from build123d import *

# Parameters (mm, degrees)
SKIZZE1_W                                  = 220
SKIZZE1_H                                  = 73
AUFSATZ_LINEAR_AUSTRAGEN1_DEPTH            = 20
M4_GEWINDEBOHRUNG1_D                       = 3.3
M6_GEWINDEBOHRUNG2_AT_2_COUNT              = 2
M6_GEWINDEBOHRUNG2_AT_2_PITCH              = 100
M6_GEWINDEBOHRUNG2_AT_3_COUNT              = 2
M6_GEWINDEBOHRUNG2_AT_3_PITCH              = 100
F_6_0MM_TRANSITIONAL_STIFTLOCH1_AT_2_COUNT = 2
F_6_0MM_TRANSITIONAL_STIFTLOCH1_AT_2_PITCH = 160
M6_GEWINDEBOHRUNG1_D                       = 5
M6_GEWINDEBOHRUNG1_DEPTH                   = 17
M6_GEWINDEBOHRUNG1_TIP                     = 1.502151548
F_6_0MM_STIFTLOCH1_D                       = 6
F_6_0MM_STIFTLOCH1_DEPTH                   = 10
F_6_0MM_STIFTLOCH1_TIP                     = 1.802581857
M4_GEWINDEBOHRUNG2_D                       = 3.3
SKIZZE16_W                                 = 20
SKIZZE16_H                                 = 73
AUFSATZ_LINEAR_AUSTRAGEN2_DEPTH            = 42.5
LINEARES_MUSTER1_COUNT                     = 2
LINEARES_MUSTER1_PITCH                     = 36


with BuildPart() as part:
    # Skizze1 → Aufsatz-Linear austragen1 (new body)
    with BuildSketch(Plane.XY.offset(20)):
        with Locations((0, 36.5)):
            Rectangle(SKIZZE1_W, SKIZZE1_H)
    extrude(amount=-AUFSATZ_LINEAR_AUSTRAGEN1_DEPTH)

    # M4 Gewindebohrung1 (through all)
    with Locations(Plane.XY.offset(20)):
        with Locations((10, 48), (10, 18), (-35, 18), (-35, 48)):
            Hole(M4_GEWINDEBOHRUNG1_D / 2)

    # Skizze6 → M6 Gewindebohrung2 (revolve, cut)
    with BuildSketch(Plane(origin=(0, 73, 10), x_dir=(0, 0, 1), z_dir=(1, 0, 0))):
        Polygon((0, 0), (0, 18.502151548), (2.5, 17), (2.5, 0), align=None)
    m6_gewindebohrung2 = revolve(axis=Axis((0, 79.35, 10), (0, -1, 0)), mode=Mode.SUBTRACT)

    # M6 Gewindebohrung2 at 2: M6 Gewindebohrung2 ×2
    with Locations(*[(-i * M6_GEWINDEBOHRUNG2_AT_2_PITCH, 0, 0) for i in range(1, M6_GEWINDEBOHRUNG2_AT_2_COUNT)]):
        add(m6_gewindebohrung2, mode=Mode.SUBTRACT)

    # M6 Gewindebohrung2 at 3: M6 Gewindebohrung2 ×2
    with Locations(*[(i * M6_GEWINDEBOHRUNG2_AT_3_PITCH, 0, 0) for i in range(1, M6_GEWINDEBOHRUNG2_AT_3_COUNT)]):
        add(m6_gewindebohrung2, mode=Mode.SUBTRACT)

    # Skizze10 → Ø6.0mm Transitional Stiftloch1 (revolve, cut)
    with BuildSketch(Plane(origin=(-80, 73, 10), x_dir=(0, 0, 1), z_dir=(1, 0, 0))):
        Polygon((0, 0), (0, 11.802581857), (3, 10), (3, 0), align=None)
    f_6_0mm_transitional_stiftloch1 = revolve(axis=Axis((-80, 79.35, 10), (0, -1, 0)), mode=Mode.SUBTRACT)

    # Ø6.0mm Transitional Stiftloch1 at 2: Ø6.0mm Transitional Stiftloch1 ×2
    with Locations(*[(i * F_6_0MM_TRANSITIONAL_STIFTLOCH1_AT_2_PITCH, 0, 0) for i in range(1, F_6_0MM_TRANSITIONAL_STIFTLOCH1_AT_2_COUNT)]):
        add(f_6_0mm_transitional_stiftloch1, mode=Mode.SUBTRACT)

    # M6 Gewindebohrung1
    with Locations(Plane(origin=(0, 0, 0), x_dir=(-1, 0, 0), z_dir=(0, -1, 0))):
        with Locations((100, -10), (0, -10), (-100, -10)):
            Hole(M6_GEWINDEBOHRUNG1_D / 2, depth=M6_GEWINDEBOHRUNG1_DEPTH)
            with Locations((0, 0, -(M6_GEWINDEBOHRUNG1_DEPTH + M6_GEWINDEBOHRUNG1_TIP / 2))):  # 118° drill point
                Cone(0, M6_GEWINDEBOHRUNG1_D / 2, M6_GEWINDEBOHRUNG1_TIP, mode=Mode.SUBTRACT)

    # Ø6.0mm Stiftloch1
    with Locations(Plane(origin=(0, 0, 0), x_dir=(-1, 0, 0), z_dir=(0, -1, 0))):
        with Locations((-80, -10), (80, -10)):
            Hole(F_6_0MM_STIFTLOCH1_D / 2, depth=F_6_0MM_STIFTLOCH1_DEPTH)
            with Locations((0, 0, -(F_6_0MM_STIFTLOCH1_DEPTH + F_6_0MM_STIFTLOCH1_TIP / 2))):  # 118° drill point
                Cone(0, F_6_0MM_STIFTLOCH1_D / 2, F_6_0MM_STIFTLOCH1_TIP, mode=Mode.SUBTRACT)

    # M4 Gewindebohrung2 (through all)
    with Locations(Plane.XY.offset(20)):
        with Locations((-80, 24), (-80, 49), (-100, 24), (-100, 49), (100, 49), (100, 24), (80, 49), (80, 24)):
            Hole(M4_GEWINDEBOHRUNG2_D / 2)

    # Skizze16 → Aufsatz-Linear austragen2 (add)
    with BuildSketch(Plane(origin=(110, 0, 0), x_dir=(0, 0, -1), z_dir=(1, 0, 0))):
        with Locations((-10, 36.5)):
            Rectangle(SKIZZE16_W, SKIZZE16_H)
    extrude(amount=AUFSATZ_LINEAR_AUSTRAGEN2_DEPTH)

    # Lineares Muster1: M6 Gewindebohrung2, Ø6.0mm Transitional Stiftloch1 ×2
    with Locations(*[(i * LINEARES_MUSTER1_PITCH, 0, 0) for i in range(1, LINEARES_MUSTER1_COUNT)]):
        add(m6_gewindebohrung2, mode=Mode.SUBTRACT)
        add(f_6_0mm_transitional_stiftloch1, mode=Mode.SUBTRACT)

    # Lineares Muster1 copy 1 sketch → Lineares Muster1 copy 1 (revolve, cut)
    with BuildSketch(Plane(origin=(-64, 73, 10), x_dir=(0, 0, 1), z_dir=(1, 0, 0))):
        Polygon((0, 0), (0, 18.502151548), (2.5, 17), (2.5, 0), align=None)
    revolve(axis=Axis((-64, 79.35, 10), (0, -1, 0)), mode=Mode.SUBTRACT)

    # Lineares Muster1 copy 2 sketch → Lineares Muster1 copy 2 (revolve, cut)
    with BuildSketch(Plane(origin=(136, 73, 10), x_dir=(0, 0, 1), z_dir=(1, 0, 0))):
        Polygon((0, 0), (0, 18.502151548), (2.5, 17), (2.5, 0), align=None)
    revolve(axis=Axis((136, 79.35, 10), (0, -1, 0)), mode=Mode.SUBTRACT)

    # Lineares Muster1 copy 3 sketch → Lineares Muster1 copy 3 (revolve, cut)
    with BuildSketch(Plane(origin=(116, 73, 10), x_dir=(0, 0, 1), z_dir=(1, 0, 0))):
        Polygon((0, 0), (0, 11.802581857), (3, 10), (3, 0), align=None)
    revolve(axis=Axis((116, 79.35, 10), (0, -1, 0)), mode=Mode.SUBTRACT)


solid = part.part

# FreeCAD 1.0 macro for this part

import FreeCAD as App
import Part
import Sketcher

V = App.Vector
Q = App.Units.Quantity


def add_polygon(sketch, points):
    """Adds a closed chain of lines whose ends are joined by coincident constraints."""
    first, n = sketch.GeometryCount, len(points)
    for a, b in zip(points, points[1:] + points[:1]):
        sketch.addGeometry(Part.LineSegment(App.Vector(*a, 0), App.Vector(*b, 0)), False)
    for i in range(n):
        sketch.addConstraint(Sketcher.Constraint("Coincident", first + i, 2, first + (i + 1) % n, 1))

doc = App.newDocument("Part")
body = doc.addObject("PartDesign::Body", "Body")

sketch1 = body.newObject("Sketcher::SketchObject", "Sketch")
sketch1.AttachmentSupport = (doc.getObject("XY_Plane"), [""])
sketch1.MapMode = "FlatFace"
sketch1.AttachmentOffset = App.Placement(V(0, 0, 20), App.Rotation())
add_polygon(sketch1, [(-110, 73), (-110, 0), (110, 0), (110, 73)])
sketch1.addConstraint([
    Sketcher.Constraint("Vertical", 0),
    Sketcher.Constraint("Horizontal", 1),
    Sketcher.Constraint("Vertical", 2),
    Sketcher.Constraint("Horizontal", 3),
    Sketcher.Constraint("Symmetric", 0, 2, 1, 2, -1, 1),
    Sketcher.Constraint("DistanceX", 1, 1, 1, 2, 220.0),
    Sketcher.Constraint("DistanceY", 0, 2, 0, 1, 73.0),
])
pad1 = body.newObject("PartDesign::Pad", "Pad")
pad1.Profile = sketch1
pad1.Length = 20
pad1.Reversed = True

sketch2 = body.newObject("Sketcher::SketchObject", "Sketch001")
sketch2.AttachmentSupport = (doc.getObject("XY_Plane"), [""])
sketch2.MapMode = "FlatFace"
sketch2.AttachmentOffset = App.Placement(V(0, 0, 20), App.Rotation())
sketch2.addGeometry([
    Part.Circle(V(10, 48, 0), V(0, 0, 1), 1.65),
    Part.Circle(V(10, 18, 0), V(0, 0, 1), 1.65),
    Part.Circle(V(-35, 18, 0), V(0, 0, 1), 1.65),
    Part.Circle(V(-35, 48, 0), V(0, 0, 1), 1.65),
], False)
sketch2.addConstraint([
    Sketcher.Constraint("Equal", 0, 1),
    Sketcher.Constraint("Equal", 1, 2),
    Sketcher.Constraint("Equal", 2, 3),
    Sketcher.Constraint("Horizontal", 1, 3, 2, 3),
    Sketcher.Constraint("Horizontal", 0, 3, 3, 3),
    Sketcher.Constraint("Vertical", 0, 3, 1, 3),
    Sketcher.Constraint("Vertical", 2, 3, 3, 3),
    Sketcher.Constraint("Diameter", 0, 3.3),
    Sketcher.Constraint("DistanceX", -1, 1, 0, 3, 10.0),
    Sketcher.Constraint("DistanceY", -1, 1, 0, 3, 48.0),
    Sketcher.Constraint("DistanceY", -1, 1, 1, 3, 18.0),
    Sketcher.Constraint("DistanceX", 2, 3, -1, 1, 35.0),
])
doc.recompute()
hole = body.newObject("PartDesign::Hole", "Hole")
hole.Profile = sketch2
hole.ThreadType = "None"
hole.Diameter = 3.3
hole.DepthType = "ThroughAll"

sketch3 = body.newObject("Sketcher::SketchObject", "Sketch002")
sketch3.AttachmentSupport = (doc.getObject("YZ_Plane"), [""])
sketch3.MapMode = "FlatFace"
add_polygon(sketch3, [(54.497848, 10), (73, 10), (73, 12.5), (56, 12.5)])
sketch3.addGeometry(Part.LineSegment(V(73, 10, 0), V(54.497848, 10, 0)), True)
sketch3.addConstraint([
    Sketcher.Constraint("Horizontal", 0),
    Sketcher.Constraint("Vertical", 1),
    Sketcher.Constraint("Horizontal", 2),
    Sketcher.Constraint("Horizontal", 4),
    Sketcher.Constraint("Coincident", 4, 1, 0, 2),
    Sketcher.Constraint("Equal", 0, 4),
    Sketcher.Constraint("DistanceX", 2, 2, 2, 1, 17.0),
    Sketcher.Constraint("Angle", 3, Q("-121 deg")),
    Sketcher.Constraint("DistanceY", 1, 1, 1, 2, 2.5),
    Sketcher.Constraint("DistanceX", -1, 1, 0, 2, 73.0),
    Sketcher.Constraint("DistanceY", -1, 1, 0, 2, 10.0),
])
groove = body.newObject("PartDesign::Groove", "Groove")
groove.Profile = sketch3
groove.ReferenceAxis = (sketch3, ["Axis0"])
groove.Angle = 360
doc.recompute()

linearpattern = body.newObject("PartDesign::LinearPattern", "LinearPattern")
linearpattern.Originals = [groove]
linearpattern.Direction = (doc.getObject("X_Axis"), [""])
linearpattern.Mode = "offset"
linearpattern.Offset = 100
linearpattern.Occurrences = 2
linearpattern.Reversed = True
body.Tip = linearpattern
doc.recompute()

linearpattern2 = body.newObject("PartDesign::LinearPattern", "LinearPattern001")
linearpattern2.Originals = [groove]
linearpattern2.Direction = (doc.getObject("X_Axis"), [""])
linearpattern2.Mode = "offset"
linearpattern2.Offset = 100
linearpattern2.Occurrences = 2
body.Tip = linearpattern2

sketch4 = body.newObject("Sketcher::SketchObject", "Sketch003")
sketch4.AttachmentSupport = (doc.getObject("YZ_Plane"), [""])
sketch4.MapMode = "FlatFace"
sketch4.AttachmentOffset = App.Placement(V(0, 0, -80), App.Rotation())
add_polygon(sketch4, [(61.197418, 10), (73, 10), (73, 13), (63, 13)])
sketch4.addGeometry(Part.LineSegment(V(73, 10, 0), V(61.197418, 10, 0)), True)
sketch4.addConstraint([
    Sketcher.Constraint("Horizontal", 0),
    Sketcher.Constraint("Vertical", 1),
    Sketcher.Constraint("Horizontal", 2),
    Sketcher.Constraint("Horizontal", 4),
    Sketcher.Constraint("Coincident", 4, 1, 0, 2),
    Sketcher.Constraint("Equal", 0, 4),
    Sketcher.Constraint("DistanceX", 2, 2, 2, 1, 10.0),
    Sketcher.Constraint("DistanceY", 1, 1, 1, 2, 3.0),
    Sketcher.Constraint("Angle", 3, Q("-121 deg")),
    Sketcher.Constraint("DistanceX", -1, 1, 0, 2, 73.0),
    Sketcher.Constraint("DistanceY", -1, 1, 0, 2, 10.0),
])
groove2 = body.newObject("PartDesign::Groove", "Groove001")
groove2.Profile = sketch4
groove2.ReferenceAxis = (sketch4, ["Axis0"])
groove2.Angle = 360
doc.recompute()

linearpattern3 = body.newObject("PartDesign::LinearPattern", "LinearPattern002")
linearpattern3.Originals = [groove2]
linearpattern3.Direction = (doc.getObject("X_Axis"), [""])
linearpattern3.Mode = "offset"
linearpattern3.Offset = 160
linearpattern3.Occurrences = 2
body.Tip = linearpattern3

sketch5 = body.newObject("Sketcher::SketchObject", "Sketch004")
sketch5.AttachmentSupport = (doc.getObject("XZ_Plane"), [""])
sketch5.MapMode = "FlatFace"
sketch5.addGeometry([
    Part.Circle(V(-100, 10, 0), V(0, 0, 1), 2.5),
    Part.Circle(V(0, 10, 0), V(0, 0, 1), 2.5),
    Part.Circle(V(100, 10, 0), V(0, 0, 1), 2.5),
], False)
sketch5.addConstraint([
    Sketcher.Constraint("Equal", 0, 1),
    Sketcher.Constraint("Equal", 1, 2),
    Sketcher.Constraint("Symmetric", 0, 3, 2, 3, -2),
    Sketcher.Constraint("PointOnObject", 1, 3, -2),
    Sketcher.Constraint("Horizontal", 0, 3, 1, 3),
    Sketcher.Constraint("Diameter", 0, 5.0),
    Sketcher.Constraint("DistanceX", 0, 3, -1, 1, 100.0),
    Sketcher.Constraint("DistanceY", -1, 1, 0, 3, 10.0),
])
doc.recompute()
hole2 = body.newObject("PartDesign::Hole", "Hole001")
hole2.Profile = sketch5
hole2.ThreadType = "None"
hole2.Diameter = 5
hole2.DepthType = "Dimension"
hole2.Depth = 17
hole2.DrillPoint = "Angled"
hole2.DrillPointAngle = 118

sketch6 = body.newObject("Sketcher::SketchObject", "Sketch005")
sketch6.AttachmentSupport = (doc.getObject("XZ_Plane"), [""])
sketch6.MapMode = "FlatFace"
sketch6.addGeometry([
    Part.Circle(V(80, 10, 0), V(0, 0, 1), 3),
    Part.Circle(V(-80, 10, 0), V(0, 0, 1), 3),
], False)
sketch6.addConstraint([
    Sketcher.Constraint("Equal", 0, 1),
    Sketcher.Constraint("Symmetric", 0, 3, 1, 3, -2),
    Sketcher.Constraint("Diameter", 0, 6.0),
    Sketcher.Constraint("DistanceX", -1, 1, 0, 3, 80.0),
    Sketcher.Constraint("DistanceY", -1, 1, 0, 3, 10.0),
])
doc.recompute()
hole3 = body.newObject("PartDesign::Hole", "Hole002")
hole3.Profile = sketch6
hole3.ThreadType = "None"
hole3.Diameter = 6
hole3.DepthType = "Dimension"
hole3.Depth = 10
hole3.DrillPoint = "Angled"
hole3.DrillPointAngle = 118

sketch7 = body.newObject("Sketcher::SketchObject", "Sketch006")
sketch7.AttachmentSupport = (doc.getObject("XY_Plane"), [""])
sketch7.MapMode = "FlatFace"
sketch7.AttachmentOffset = App.Placement(V(0, 0, 20), App.Rotation())
sketch7.addGeometry([
    Part.Circle(V(-80, 24, 0), V(0, 0, 1), 1.65),
    Part.Circle(V(-80, 49, 0), V(0, 0, 1), 1.65),
    Part.Circle(V(-100, 24, 0), V(0, 0, 1), 1.65),
    Part.Circle(V(-100, 49, 0), V(0, 0, 1), 1.65),
    Part.Circle(V(100, 49, 0), V(0, 0, 1), 1.65),
    Part.Circle(V(100, 24, 0), V(0, 0, 1), 1.65),
    Part.Circle(V(80, 49, 0), V(0, 0, 1), 1.65),
    Part.Circle(V(80, 24, 0), V(0, 0, 1), 1.65),
], False)
sketch7.addConstraint([
    Sketcher.Constraint("Equal", 0, 1),
    Sketcher.Constraint("Equal", 1, 2),
    Sketcher.Constraint("Equal", 2, 3),
    Sketcher.Constraint("Equal", 3, 4),
    Sketcher.Constraint("Equal", 4, 5),
    Sketcher.Constraint("Equal", 5, 6),
    Sketcher.Constraint("Equal", 6, 7),
    Sketcher.Constraint("Symmetric", 3, 3, 4, 3, -2),
    Sketcher.Constraint("Symmetric", 2, 3, 5, 3, -2),
    Sketcher.Constraint("Symmetric", 1, 3, 6, 3, -2),
    Sketcher.Constraint("Symmetric", 0, 3, 7, 3, -2),
    Sketcher.Constraint("Horizontal", 0, 3, 2, 3),
    Sketcher.Constraint("Horizontal", 1, 3, 3, 3),
    Sketcher.Constraint("Vertical", 0, 3, 1, 3),
    Sketcher.Constraint("Vertical", 2, 3, 3, 3),
    Sketcher.Constraint("Diameter", 0, 3.3),
    Sketcher.Constraint("DistanceX", 0, 3, -1, 1, 80.0),
    Sketcher.Constraint("DistanceY", -1, 1, 0, 3, 24.0),
    Sketcher.Constraint("DistanceY", -1, 1, 1, 3, 49.0),
    Sketcher.Constraint("DistanceX", 2, 3, -1, 1, 100.0),
])
doc.recompute()
hole4 = body.newObject("PartDesign::Hole", "Hole003")
hole4.Profile = sketch7
hole4.ThreadType = "None"
hole4.Diameter = 3.3
hole4.DepthType = "ThroughAll"

sketch8 = body.newObject("Sketcher::SketchObject", "Sketch007")
sketch8.AttachmentSupport = (doc.getObject("YZ_Plane"), [""])
sketch8.MapMode = "FlatFace"
sketch8.AttachmentOffset = App.Placement(V(0, 0, 110), App.Rotation())
add_polygon(sketch8, [(73, 20), (0, 20), (0, 0), (73, 0)])
sketch8.addConstraint([
    Sketcher.Constraint("Horizontal", 0),
    Sketcher.Constraint("Vertical", 1),
    Sketcher.Constraint("Horizontal", 2),
    Sketcher.Constraint("Vertical", 3),
    Sketcher.Constraint("Coincident", 1, 2, -1, 1),
    Sketcher.Constraint("DistanceX", 0, 2, 0, 1, 73.0),
    Sketcher.Constraint("DistanceY", 1, 2, 1, 1, 20.0),
])
pad2 = body.newObject("PartDesign::Pad", "Pad001")
pad2.Profile = sketch8
pad2.Length = 42.5
doc.recompute()

linearpattern4 = body.newObject("PartDesign::LinearPattern", "LinearPattern003")
linearpattern4.Originals = [groove, groove2]
linearpattern4.Direction = (doc.getObject("X_Axis"), [""])
linearpattern4.Mode = "offset"
linearpattern4.Offset = 36
linearpattern4.Occurrences = 2
body.Tip = linearpattern4

sketch9 = body.newObject("Sketcher::SketchObject", "Sketch008")
sketch9.AttachmentSupport = (doc.getObject("YZ_Plane"), [""])
sketch9.MapMode = "FlatFace"
sketch9.AttachmentOffset = App.Placement(V(0, 0, -64), App.Rotation())
add_polygon(sketch9, [(54.497848, 10), (73, 10), (73, 12.5), (56, 12.5)])
sketch9.addGeometry(Part.LineSegment(V(73, 10, 0), V(54.497848, 10, 0)), True)
sketch9.addConstraint([
    Sketcher.Constraint("Horizontal", 0),
    Sketcher.Constraint("Vertical", 1),
    Sketcher.Constraint("Horizontal", 2),
    Sketcher.Constraint("Horizontal", 4),
    Sketcher.Constraint("Coincident", 4, 1, 0, 2),
    Sketcher.Constraint("Equal", 0, 4),
    Sketcher.Constraint("DistanceX", 2, 2, 2, 1, 17.0),
    Sketcher.Constraint("Angle", 3, Q("-121 deg")),
    Sketcher.Constraint("DistanceY", 1, 1, 1, 2, 2.5),
    Sketcher.Constraint("DistanceX", -1, 1, 0, 2, 73.0),
    Sketcher.Constraint("DistanceY", -1, 1, 0, 2, 10.0),
])
groove3 = body.newObject("PartDesign::Groove", "Groove002")
groove3.Profile = sketch9
groove3.ReferenceAxis = (sketch9, ["Axis0"])
groove3.Angle = 360

sketch10 = body.newObject("Sketcher::SketchObject", "Sketch009")
sketch10.AttachmentSupport = (doc.getObject("YZ_Plane"), [""])
sketch10.MapMode = "FlatFace"
sketch10.AttachmentOffset = App.Placement(V(0, 0, 136), App.Rotation())
add_polygon(sketch10, [(54.497848, 10), (73, 10), (73, 12.5), (56, 12.5)])
sketch10.addGeometry(Part.LineSegment(V(73, 10, 0), V(54.497848, 10, 0)), True)
sketch10.addConstraint([
    Sketcher.Constraint("Horizontal", 0),
    Sketcher.Constraint("Vertical", 1),
    Sketcher.Constraint("Horizontal", 2),
    Sketcher.Constraint("Horizontal", 4),
    Sketcher.Constraint("Coincident", 4, 1, 0, 2),
    Sketcher.Constraint("Equal", 0, 4),
    Sketcher.Constraint("DistanceX", 2, 2, 2, 1, 17.0),
    Sketcher.Constraint("Angle", 3, Q("-121 deg")),
    Sketcher.Constraint("DistanceY", 1, 1, 1, 2, 2.5),
    Sketcher.Constraint("DistanceX", -1, 1, 0, 2, 73.0),
    Sketcher.Constraint("DistanceY", -1, 1, 0, 2, 10.0),
])
groove4 = body.newObject("PartDesign::Groove", "Groove003")
groove4.Profile = sketch10
groove4.ReferenceAxis = (sketch10, ["Axis0"])
groove4.Angle = 360

sketch11 = body.newObject("Sketcher::SketchObject", "Sketch010")
sketch11.AttachmentSupport = (doc.getObject("YZ_Plane"), [""])
sketch11.MapMode = "FlatFace"
sketch11.AttachmentOffset = App.Placement(V(0, 0, 116), App.Rotation())
add_polygon(sketch11, [(61.197418, 10), (73, 10), (73, 13), (63, 13)])
sketch11.addGeometry(Part.LineSegment(V(73, 10, 0), V(61.197418, 10, 0)), True)
sketch11.addConstraint([
    Sketcher.Constraint("Horizontal", 0),
    Sketcher.Constraint("Vertical", 1),
    Sketcher.Constraint("Horizontal", 2),
    Sketcher.Constraint("Horizontal", 4),
    Sketcher.Constraint("Coincident", 4, 1, 0, 2),
    Sketcher.Constraint("Equal", 0, 4),
    Sketcher.Constraint("DistanceX", 2, 2, 2, 1, 10.0),
    Sketcher.Constraint("DistanceY", 1, 1, 1, 2, 3.0),
    Sketcher.Constraint("Angle", 3, Q("-121 deg")),
    Sketcher.Constraint("DistanceX", -1, 1, 0, 2, 73.0),
    Sketcher.Constraint("DistanceY", -1, 1, 0, 2, 10.0),
])
groove5 = body.newObject("PartDesign::Groove", "Groove004")
groove5.Profile = sketch11
groove5.ReferenceAxis = (sketch11, ["Axis0"])
groove5.Angle = 360

doc.recompute()
